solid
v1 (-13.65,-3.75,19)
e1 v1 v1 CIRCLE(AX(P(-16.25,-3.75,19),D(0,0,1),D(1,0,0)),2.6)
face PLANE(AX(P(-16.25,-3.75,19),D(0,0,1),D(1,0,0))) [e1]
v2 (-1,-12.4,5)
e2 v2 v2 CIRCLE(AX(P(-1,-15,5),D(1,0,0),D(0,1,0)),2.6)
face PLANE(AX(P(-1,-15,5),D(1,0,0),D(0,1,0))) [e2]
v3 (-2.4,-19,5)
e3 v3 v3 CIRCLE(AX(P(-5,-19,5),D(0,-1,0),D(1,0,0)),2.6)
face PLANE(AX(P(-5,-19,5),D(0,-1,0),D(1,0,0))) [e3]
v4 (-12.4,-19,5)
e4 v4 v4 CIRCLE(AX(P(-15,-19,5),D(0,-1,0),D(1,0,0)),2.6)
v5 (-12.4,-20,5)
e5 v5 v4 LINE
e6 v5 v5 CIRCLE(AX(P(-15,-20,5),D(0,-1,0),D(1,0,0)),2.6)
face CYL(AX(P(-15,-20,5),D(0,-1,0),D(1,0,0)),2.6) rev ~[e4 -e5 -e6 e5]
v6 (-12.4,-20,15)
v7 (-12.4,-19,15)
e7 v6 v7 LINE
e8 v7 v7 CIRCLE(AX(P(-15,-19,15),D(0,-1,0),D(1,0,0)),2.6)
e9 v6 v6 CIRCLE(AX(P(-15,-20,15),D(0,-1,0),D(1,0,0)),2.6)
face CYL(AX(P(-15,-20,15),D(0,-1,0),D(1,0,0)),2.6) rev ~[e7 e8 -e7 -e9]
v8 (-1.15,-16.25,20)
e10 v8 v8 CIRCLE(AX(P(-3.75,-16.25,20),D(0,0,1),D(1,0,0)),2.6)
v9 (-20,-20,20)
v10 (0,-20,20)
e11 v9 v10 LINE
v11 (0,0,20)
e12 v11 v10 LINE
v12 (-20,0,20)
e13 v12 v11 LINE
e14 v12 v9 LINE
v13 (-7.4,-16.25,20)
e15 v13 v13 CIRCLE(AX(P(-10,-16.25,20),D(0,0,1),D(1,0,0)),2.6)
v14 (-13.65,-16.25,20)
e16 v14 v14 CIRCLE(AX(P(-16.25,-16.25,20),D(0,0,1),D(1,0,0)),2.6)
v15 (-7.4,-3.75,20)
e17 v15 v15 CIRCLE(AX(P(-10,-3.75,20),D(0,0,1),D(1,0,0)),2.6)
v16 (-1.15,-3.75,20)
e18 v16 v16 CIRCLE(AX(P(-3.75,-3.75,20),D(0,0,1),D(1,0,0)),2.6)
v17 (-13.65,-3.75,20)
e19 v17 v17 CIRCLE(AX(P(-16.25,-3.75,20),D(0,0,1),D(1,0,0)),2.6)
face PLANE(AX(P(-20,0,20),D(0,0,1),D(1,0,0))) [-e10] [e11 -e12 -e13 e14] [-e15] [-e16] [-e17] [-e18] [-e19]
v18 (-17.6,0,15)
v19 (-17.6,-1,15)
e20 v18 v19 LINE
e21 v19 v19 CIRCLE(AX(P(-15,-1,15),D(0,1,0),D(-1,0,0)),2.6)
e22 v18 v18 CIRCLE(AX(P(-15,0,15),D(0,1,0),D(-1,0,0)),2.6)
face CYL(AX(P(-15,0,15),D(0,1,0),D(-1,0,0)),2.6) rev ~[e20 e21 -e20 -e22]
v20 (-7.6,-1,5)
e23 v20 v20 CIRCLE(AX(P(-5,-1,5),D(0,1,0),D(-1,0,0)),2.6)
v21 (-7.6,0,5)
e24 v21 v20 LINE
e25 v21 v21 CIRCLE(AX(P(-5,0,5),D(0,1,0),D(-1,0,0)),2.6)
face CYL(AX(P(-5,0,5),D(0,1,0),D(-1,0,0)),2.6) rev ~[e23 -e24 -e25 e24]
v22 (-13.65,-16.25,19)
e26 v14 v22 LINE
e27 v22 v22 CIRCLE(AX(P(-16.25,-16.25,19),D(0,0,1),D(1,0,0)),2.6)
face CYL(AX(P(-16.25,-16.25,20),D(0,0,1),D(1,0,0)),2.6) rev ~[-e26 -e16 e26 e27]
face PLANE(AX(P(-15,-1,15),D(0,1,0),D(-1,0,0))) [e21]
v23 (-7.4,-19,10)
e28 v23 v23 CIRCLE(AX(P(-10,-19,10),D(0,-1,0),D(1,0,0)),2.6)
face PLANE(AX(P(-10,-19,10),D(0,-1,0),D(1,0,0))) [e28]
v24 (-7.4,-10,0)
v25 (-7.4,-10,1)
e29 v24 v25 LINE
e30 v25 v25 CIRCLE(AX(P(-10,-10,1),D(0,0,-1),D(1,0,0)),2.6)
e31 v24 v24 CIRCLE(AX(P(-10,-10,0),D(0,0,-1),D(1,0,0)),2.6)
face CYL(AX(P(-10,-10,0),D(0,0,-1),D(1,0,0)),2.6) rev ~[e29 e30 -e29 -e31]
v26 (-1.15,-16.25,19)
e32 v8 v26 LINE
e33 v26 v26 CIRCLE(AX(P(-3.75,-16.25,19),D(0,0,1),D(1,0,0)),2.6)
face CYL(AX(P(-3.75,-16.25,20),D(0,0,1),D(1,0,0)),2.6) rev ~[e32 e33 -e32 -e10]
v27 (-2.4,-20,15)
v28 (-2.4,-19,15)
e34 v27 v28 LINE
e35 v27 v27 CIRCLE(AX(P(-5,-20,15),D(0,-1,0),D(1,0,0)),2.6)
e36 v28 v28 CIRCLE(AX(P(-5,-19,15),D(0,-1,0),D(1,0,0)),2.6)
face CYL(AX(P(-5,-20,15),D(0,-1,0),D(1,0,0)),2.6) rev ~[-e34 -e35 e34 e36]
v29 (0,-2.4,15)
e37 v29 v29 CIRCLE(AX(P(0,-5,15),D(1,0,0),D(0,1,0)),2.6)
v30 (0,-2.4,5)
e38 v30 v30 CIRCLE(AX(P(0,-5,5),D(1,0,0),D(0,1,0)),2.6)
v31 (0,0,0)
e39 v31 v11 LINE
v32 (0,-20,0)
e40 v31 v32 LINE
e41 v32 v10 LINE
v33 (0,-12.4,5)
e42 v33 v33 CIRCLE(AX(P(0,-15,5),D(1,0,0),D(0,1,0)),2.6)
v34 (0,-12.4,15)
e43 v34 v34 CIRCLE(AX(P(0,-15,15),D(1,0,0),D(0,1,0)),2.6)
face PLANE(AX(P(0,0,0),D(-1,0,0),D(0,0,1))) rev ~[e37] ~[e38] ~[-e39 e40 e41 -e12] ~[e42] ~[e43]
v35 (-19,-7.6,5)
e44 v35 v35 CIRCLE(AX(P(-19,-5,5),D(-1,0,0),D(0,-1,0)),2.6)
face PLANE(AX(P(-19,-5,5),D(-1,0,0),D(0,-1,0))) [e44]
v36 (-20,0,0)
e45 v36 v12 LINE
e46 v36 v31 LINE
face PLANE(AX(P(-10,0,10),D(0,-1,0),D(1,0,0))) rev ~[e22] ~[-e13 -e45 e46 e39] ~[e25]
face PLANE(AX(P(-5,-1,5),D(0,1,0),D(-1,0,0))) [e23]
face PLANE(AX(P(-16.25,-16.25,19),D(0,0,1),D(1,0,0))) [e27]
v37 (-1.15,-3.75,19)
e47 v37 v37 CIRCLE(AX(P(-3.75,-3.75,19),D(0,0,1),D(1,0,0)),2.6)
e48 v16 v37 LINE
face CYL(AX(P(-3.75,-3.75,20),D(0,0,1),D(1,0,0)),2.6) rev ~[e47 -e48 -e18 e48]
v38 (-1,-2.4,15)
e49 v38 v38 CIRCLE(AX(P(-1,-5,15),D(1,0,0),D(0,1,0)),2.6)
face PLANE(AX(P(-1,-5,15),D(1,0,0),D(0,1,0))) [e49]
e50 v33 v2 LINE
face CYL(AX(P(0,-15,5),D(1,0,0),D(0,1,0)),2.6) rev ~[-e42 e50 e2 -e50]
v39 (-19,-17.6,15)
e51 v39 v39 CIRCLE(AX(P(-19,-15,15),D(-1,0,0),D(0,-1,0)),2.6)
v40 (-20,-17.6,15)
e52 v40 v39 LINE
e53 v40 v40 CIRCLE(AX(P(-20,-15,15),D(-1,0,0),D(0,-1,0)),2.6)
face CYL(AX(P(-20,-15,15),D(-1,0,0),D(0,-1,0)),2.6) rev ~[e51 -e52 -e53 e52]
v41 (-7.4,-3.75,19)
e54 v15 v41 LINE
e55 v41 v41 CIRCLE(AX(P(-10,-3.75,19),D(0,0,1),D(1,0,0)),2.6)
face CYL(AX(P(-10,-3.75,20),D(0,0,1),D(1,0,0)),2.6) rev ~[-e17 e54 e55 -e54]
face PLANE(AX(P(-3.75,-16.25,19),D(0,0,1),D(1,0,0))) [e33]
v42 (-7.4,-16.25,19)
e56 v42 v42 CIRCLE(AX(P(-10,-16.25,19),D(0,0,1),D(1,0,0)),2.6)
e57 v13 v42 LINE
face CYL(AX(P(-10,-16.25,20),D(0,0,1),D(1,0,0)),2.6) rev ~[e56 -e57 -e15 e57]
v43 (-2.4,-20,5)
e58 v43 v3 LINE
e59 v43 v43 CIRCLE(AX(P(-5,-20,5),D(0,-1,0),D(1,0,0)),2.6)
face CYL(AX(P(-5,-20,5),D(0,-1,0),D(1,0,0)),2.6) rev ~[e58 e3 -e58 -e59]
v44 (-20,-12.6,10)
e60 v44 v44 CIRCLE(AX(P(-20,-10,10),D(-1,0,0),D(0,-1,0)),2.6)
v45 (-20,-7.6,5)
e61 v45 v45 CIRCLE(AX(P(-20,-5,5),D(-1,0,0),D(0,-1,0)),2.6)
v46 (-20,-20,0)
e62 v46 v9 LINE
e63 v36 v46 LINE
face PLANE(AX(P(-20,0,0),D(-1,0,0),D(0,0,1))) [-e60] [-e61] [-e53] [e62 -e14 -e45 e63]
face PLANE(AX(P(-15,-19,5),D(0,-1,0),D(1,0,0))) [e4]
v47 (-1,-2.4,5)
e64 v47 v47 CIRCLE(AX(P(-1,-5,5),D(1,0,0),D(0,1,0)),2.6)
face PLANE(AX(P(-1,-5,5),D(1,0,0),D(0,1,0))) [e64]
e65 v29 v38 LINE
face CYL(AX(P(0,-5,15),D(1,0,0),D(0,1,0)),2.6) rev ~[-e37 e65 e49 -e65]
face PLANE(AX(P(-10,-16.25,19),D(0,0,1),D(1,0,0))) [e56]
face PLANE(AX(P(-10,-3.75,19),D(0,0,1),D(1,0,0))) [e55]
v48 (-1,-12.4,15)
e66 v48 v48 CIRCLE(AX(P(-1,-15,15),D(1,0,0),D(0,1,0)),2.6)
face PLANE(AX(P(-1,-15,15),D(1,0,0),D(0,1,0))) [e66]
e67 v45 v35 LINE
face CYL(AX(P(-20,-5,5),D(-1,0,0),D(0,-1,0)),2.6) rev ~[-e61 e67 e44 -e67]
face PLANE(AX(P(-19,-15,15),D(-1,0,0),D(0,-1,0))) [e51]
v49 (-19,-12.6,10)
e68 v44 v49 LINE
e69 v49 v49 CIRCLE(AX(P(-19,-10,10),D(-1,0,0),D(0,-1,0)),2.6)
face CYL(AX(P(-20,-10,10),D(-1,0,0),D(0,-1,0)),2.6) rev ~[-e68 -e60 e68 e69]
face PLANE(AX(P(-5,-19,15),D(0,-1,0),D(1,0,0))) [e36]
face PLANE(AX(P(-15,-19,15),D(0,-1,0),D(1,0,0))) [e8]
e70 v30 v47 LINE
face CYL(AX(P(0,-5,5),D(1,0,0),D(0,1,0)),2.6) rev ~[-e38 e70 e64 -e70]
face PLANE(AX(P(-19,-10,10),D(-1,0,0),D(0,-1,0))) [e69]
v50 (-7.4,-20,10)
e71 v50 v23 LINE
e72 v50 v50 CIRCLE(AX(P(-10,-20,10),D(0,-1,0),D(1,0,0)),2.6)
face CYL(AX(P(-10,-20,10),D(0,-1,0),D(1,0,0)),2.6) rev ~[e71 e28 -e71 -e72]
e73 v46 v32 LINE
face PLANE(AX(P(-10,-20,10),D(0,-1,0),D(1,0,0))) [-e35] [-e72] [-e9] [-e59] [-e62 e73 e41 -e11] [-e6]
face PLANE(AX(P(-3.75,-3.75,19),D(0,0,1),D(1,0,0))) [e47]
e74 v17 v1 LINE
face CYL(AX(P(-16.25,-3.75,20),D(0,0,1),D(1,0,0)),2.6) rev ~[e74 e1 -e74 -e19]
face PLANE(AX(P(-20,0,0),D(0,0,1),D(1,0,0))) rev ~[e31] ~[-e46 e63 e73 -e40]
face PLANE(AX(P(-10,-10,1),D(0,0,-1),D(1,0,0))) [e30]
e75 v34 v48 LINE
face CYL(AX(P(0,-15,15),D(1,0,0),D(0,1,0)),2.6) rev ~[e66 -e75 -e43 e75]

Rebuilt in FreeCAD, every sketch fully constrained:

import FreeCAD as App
import Part
import Sketcher

V = App.Vector
Q = App.Units.Quantity

doc = App.newDocument("Part")
params = doc.addObject("Spreadsheet::Sheet", "Params")
for row, (alias, value) in enumerate([
    ("sketch1_width", "20 mm"),
    ("pad1_length", "20 mm"),
    ("sketch2_diameter", "5.2 mm"),
    ("pocket1_length", "1 mm"),
    ("sketch3_diameter", "5.2 mm"),
    ("pocket2_length", "1 mm"),
    ("sketch4_diameter", "5.2 mm"),
    ("pocket3_length", "1 mm"),
    ("sketch5_diameter", "5.2 mm"),
    ("pocket4_length", "1 mm"),
    ("sketch6_diameter", "5.2 mm"),
    ("pocket5_length", "1 mm"),
    ("sketch7_diameter", "5.2 mm"),
    ("pocket6_length", "1 mm"),
], start=1):
    params.set(f"A{row}", alias)
    params.set(f"B{row}", "=" + value)
    params.setAlias(f"B{row}", alias)

body = doc.addObject("PartDesign::Body", "Body")

# Sketch on XZ plane
sketch1 = body.newObject("Sketcher::SketchObject", "Sketch")
sketch1.AttachmentSupport = (doc.getObject("XZ_Plane"), [""])
sketch1.MapMode = "FlatFace"
sketch1.addGeometry([
    Part.LineSegment(V(-20, 20, 0), V(-20, 0, 0)),
    Part.LineSegment(V(-20, 0, 0), V(0, 0, 0)),
    Part.LineSegment(V(0, 0, 0), V(0, 20, 0)),
    Part.LineSegment(V(0, 20, 0), V(-20, 20, 0)),
], False)
sketch1.addConstraint([
    Sketcher.Constraint("Coincident", 0, 2, 1, 1),
    Sketcher.Constraint("Coincident", 1, 2, 2, 1),
    Sketcher.Constraint("Coincident", 2, 2, 3, 1),
    Sketcher.Constraint("Coincident", 3, 2, 0, 1),
    Sketcher.Constraint("Vertical", 0),
    Sketcher.Constraint("Horizontal", 1),
    Sketcher.Constraint("Vertical", 2),
    Sketcher.Constraint("Horizontal", 3),
    Sketcher.Constraint("Coincident", 1, 2, -1, 1),
    Sketcher.Constraint("Equal", 3, 0),
    Sketcher.Constraint("DistanceX", 1, 1, 1, 2, Q("20 mm")),
])
sketch1.setExpression("Constraints[10]", "Params.sketch1_width")
pad1 = body.newObject("PartDesign::Pad", "Pad")
pad1.Profile = sketch1
pad1.setExpression("Length", "Params.pad1_length")

# Sketch on XZ plane
sketch2 = body.newObject("Sketcher::SketchObject", "Sketch001")
sketch2.AttachmentSupport = (doc.getObject("XZ_Plane"), [""])
sketch2.MapMode = "FlatFace"
sketch2.AttachmentOffset = App.Placement(V(0, 0, 20), App.Rotation())
sketch2.addGeometry([
    Part.Circle(V(-10, 10, 0), V(0, 0, 1), 2.6),  # 0
    Part.Circle(V(-15, 15, 0), V(0, 0, 1), 2.6),  # 1
    Part.Circle(V(-5, 15, 0), V(0, 0, 1), 2.6),  # 2
    Part.Circle(V(-15, 5, 0), V(0, 0, 1), 2.6),  # 3
    Part.Circle(V(-5, 5, 0), V(0, 0, 1), 2.6),  # 4
], False)
sketch2.addConstraint([
    Sketcher.Constraint("Equal", 0, 1),
    Sketcher.Constraint("Equal", 1, 2),
    Sketcher.Constraint("Equal", 2, 3),
    Sketcher.Constraint("Equal", 3, 4),
    Sketcher.Constraint("Horizontal", 1, 3, 2, 3),
    Sketcher.Constraint("Horizontal", 3, 3, 4, 3),
    Sketcher.Constraint("Vertical", 1, 3, 3, 3),
    Sketcher.Constraint("Vertical", 2, 3, 4, 3),
    Sketcher.Constraint("Diameter", 0, Q("5.2 mm")),
    Sketcher.Constraint("DistanceX", 0, 3, -1, 1, Q("10 mm")),
    Sketcher.Constraint("DistanceY", -1, 1, 0, 3, Q("10 mm")),
    Sketcher.Constraint("DistanceX", 1, 3, -1, 1, Q("15 mm")),
    Sketcher.Constraint("DistanceY", -1, 1, 1, 3, Q("15 mm")),
    Sketcher.Constraint("DistanceX", 2, 3, -1, 1, Q("5 mm")),
    Sketcher.Constraint("DistanceY", -1, 1, 3, 3, Q("5 mm")),
])
sketch2.setExpression("Constraints[8]", "Params.sketch2_diameter")
pocket1 = body.newObject("PartDesign::Pocket", "Pocket")
pocket1.Profile = sketch2
pocket1.setExpression("Length", "Params.pocket1_length")

# Sketch on YZ plane
sketch3 = body.newObject("Sketcher::SketchObject", "Sketch002")
sketch3.AttachmentSupport = (doc.getObject("YZ_Plane"), [""])
sketch3.MapMode = "FlatFace"
sketch3.addGeometry([
    Part.Circle(V(-15, 15, 0), V(0, 0, 1), 2.6),
    Part.Circle(V(-5, 15, 0), V(0, 0, 1), 2.6),
    Part.Circle(V(-15, 5, 0), V(0, 0, 1), 2.6),
    Part.Circle(V(-5, 5, 0), V(0, 0, 1), 2.6),
], False)
sketch3.addConstraint([
    Sketcher.Constraint("Equal", 0, 1),
    Sketcher.Constraint("Equal", 1, 2),
    Sketcher.Constraint("Equal", 2, 3),
    Sketcher.Constraint("Horizontal", 0, 3, 1, 3),
    Sketcher.Constraint("Horizontal", 2, 3, 3, 3),
    Sketcher.Constraint("Vertical", 0, 3, 2, 3),
    Sketcher.Constraint("Vertical", 1, 3, 3, 3),
    Sketcher.Constraint("Diameter", 0, Q("5.2 mm")),
    Sketcher.Constraint("DistanceX", 0, 3, -1, 1, Q("15 mm")),
    Sketcher.Constraint("DistanceY", -1, 1, 0, 3, Q("15 mm")),
    Sketcher.Constraint("DistanceX", 1, 3, -1, 1, Q("5 mm")),
    Sketcher.Constraint("DistanceY", -1, 1, 2, 3, Q("5 mm")),
])
sketch3.setExpression("Constraints[7]", "Params.sketch3_diameter")
pocket2 = body.newObject("PartDesign::Pocket", "Pocket001")
pocket2.Profile = sketch3
pocket2.setExpression("Length", "Params.pocket2_length")

# Sketch on YZ plane
sketch4 = body.newObject("Sketcher::SketchObject", "Sketch003")
sketch4.AttachmentSupport = (doc.getObject("YZ_Plane"), [""])
sketch4.MapMode = "FlatFace"
sketch4.AttachmentOffset = App.Placement(V(0, 0, -20), App.Rotation())
sketch4.addGeometry([
    Part.Circle(V(-10, 10, 0), V(0, 0, 1), 2.6),
    Part.Circle(V(-15, 15, 0), V(0, 0, 1), 2.6),
    Part.Circle(V(-5, 5, 0), V(0, 0, 1), 2.6),
], False)
sketch4.addConstraint([
    Sketcher.Constraint("Equal", 0, 1),
    Sketcher.Constraint("Equal", 1, 2),
    Sketcher.Constraint("Diameter", 0, Q("5.2 mm")),
    Sketcher.Constraint("DistanceX", 0, 3, -1, 1, Q("10 mm")),
    Sketcher.Constraint("DistanceY", -1, 1, 0, 3, Q("10 mm")),
    Sketcher.Constraint("DistanceX", 1, 3, -1, 1, Q("15 mm")),
    Sketcher.Constraint("DistanceY", -1, 1, 1, 3, Q("15 mm")),
    Sketcher.Constraint("DistanceX", 2, 3, -1, 1, Q("5 mm")),
    Sketcher.Constraint("DistanceY", -1, 1, 2, 3, Q("5 mm")),
])
sketch4.setExpression("Constraints[2]", "Params.sketch4_diameter")
pocket3 = body.newObject("PartDesign::Pocket", "Pocket002")
pocket3.Profile = sketch4
pocket3.setExpression("Length", "Params.pocket3_length")
pocket3.Reversed = True

# Sketch on XZ plane
sketch5 = body.newObject("Sketcher::SketchObject", "Sketch004")
sketch5.AttachmentSupport = (doc.getObject("XZ_Plane"), [""])
sketch5.MapMode = "FlatFace"
sketch5.addGeometry([
    Part.Circle(V(-5, 5, 0), V(0, 0, 1), 2.6),
    Part.Circle(V(-15, 15, 0), V(0, 0, 1), 2.6),
], False)
sketch5.addConstraint([
    Sketcher.Constraint("Equal", 0, 1),
    Sketcher.Constraint("Diameter", 0, Q("5.2 mm")),
    Sketcher.Constraint("DistanceX", 0, 3, -1, 1, Q("5 mm")),
    Sketcher.Constraint("DistanceY", -1, 1, 0, 3, Q("5 mm")),
    Sketcher.Constraint("DistanceX", 1, 3, -1, 1, Q("15 mm")),
    Sketcher.Constraint("DistanceY", -1, 1, 1, 3, Q("15 mm")),
])
sketch5.setExpression("Constraints[1]", "Params.sketch5_diameter")
pocket4 = body.newObject("PartDesign::Pocket", "Pocket003")
pocket4.Profile = sketch5
pocket4.setExpression("Length", "Params.pocket4_length")
pocket4.Reversed = True

# Sketch on XY plane
sketch6 = body.newObject("Sketcher::SketchObject", "Sketch005")
sketch6.AttachmentSupport = (doc.getObject("XY_Plane"), [""])
sketch6.MapMode = "FlatFace"
sketch6.addGeometry(Part.Circle(V(-10, -10, 0), V(0, 0, 1), 2.6), False)
sketch6.addConstraint([
    Sketcher.Constraint("Diameter", 0, Q("5.2 mm")),
    Sketcher.Constraint("DistanceX", 0, 3, -1, 1, Q("10 mm")),
    Sketcher.Constraint("DistanceY", 0, 3, -1, 1, Q("10 mm")),
])
sketch6.setExpression("Constraints[0]", "Params.sketch6_diameter")
pocket5 = body.newObject("PartDesign::Pocket", "Pocket004")
pocket5.Profile = sketch6
pocket5.setExpression("Length", "Params.pocket5_length")
pocket5.Reversed = True

# Sketch on XY plane
sketch7 = body.newObject("Sketcher::SketchObject", "Sketch006")
sketch7.AttachmentSupport = (doc.getObject("XY_Plane"), [""])
sketch7.MapMode = "FlatFace"
sketch7.AttachmentOffset = App.Placement(V(0, 0, 20), App.Rotation())
sketch7.addGeometry([
    Part.Circle(V(-3.8, -16.2, 0), V(0, 0, 1), 2.6),  # 0
    Part.Circle(V(-3.8, -3.8, 0), V(0, 0, 1), 2.6),  # 1
    Part.Circle(V(-16.2, -16.2, 0), V(0, 0, 1), 2.6),  # 2
    Part.Circle(V(-16.2, -3.8, 0), V(0, 0, 1), 2.6),  # 3
    Part.Circle(V(-10, -16.2, 0), V(0, 0, 1), 2.6),  # 4
    Part.Circle(V(-10, -3.8, 0), V(0, 0, 1), 2.6),  # 5
], False)
sketch7.addConstraint([
    Sketcher.Constraint("Equal", 0, 1),
    Sketcher.Constraint("Equal", 1, 2),
    Sketcher.Constraint("Equal", 2, 3),
    Sketcher.Constraint("Equal", 3, 4),
    Sketcher.Constraint("Equal", 4, 5),
    Sketcher.Constraint("Horizontal", 0, 3, 2, 3),
    Sketcher.Constraint("Horizontal", 1, 3, 3, 3),
    Sketcher.Constraint("Horizontal", 2, 3, 4, 3),
    Sketcher.Constraint("Horizontal", 3, 3, 5, 3),
    Sketcher.Constraint("Vertical", 0, 3, 1, 3),
    Sketcher.Constraint("Vertical", 2, 3, 3, 3),
    Sketcher.Constraint("Vertical", 4, 3, 5, 3),
    Sketcher.Constraint("Diameter", 0, Q("5.2 mm")),
    Sketcher.Constraint("DistanceX", 4, 3, -1, 1, Q("10 mm")),
    Sketcher.Constraint("DistanceY", 0, 3, 1, 3, Q("12.5 mm")),
    Sketcher.Constraint("DistanceX", 2, 3, 0, 3, Q("12.5 mm")),
    Sketcher.Constraint("DistanceX", 0, 3, -1, 1, Q("3.75 mm")),
    Sketcher.Constraint("DistanceY", 0, 3, -1, 1, Q("16.25 mm")),
])
sketch7.setExpression("Constraints[12]", "Params.sketch7_diameter")
pocket6 = body.newObject("PartDesign::Pocket", "Pocket005")
pocket6.Profile = sketch7
pocket6.setExpression("Length", "Params.pocket6_length")

doc.recompute()
